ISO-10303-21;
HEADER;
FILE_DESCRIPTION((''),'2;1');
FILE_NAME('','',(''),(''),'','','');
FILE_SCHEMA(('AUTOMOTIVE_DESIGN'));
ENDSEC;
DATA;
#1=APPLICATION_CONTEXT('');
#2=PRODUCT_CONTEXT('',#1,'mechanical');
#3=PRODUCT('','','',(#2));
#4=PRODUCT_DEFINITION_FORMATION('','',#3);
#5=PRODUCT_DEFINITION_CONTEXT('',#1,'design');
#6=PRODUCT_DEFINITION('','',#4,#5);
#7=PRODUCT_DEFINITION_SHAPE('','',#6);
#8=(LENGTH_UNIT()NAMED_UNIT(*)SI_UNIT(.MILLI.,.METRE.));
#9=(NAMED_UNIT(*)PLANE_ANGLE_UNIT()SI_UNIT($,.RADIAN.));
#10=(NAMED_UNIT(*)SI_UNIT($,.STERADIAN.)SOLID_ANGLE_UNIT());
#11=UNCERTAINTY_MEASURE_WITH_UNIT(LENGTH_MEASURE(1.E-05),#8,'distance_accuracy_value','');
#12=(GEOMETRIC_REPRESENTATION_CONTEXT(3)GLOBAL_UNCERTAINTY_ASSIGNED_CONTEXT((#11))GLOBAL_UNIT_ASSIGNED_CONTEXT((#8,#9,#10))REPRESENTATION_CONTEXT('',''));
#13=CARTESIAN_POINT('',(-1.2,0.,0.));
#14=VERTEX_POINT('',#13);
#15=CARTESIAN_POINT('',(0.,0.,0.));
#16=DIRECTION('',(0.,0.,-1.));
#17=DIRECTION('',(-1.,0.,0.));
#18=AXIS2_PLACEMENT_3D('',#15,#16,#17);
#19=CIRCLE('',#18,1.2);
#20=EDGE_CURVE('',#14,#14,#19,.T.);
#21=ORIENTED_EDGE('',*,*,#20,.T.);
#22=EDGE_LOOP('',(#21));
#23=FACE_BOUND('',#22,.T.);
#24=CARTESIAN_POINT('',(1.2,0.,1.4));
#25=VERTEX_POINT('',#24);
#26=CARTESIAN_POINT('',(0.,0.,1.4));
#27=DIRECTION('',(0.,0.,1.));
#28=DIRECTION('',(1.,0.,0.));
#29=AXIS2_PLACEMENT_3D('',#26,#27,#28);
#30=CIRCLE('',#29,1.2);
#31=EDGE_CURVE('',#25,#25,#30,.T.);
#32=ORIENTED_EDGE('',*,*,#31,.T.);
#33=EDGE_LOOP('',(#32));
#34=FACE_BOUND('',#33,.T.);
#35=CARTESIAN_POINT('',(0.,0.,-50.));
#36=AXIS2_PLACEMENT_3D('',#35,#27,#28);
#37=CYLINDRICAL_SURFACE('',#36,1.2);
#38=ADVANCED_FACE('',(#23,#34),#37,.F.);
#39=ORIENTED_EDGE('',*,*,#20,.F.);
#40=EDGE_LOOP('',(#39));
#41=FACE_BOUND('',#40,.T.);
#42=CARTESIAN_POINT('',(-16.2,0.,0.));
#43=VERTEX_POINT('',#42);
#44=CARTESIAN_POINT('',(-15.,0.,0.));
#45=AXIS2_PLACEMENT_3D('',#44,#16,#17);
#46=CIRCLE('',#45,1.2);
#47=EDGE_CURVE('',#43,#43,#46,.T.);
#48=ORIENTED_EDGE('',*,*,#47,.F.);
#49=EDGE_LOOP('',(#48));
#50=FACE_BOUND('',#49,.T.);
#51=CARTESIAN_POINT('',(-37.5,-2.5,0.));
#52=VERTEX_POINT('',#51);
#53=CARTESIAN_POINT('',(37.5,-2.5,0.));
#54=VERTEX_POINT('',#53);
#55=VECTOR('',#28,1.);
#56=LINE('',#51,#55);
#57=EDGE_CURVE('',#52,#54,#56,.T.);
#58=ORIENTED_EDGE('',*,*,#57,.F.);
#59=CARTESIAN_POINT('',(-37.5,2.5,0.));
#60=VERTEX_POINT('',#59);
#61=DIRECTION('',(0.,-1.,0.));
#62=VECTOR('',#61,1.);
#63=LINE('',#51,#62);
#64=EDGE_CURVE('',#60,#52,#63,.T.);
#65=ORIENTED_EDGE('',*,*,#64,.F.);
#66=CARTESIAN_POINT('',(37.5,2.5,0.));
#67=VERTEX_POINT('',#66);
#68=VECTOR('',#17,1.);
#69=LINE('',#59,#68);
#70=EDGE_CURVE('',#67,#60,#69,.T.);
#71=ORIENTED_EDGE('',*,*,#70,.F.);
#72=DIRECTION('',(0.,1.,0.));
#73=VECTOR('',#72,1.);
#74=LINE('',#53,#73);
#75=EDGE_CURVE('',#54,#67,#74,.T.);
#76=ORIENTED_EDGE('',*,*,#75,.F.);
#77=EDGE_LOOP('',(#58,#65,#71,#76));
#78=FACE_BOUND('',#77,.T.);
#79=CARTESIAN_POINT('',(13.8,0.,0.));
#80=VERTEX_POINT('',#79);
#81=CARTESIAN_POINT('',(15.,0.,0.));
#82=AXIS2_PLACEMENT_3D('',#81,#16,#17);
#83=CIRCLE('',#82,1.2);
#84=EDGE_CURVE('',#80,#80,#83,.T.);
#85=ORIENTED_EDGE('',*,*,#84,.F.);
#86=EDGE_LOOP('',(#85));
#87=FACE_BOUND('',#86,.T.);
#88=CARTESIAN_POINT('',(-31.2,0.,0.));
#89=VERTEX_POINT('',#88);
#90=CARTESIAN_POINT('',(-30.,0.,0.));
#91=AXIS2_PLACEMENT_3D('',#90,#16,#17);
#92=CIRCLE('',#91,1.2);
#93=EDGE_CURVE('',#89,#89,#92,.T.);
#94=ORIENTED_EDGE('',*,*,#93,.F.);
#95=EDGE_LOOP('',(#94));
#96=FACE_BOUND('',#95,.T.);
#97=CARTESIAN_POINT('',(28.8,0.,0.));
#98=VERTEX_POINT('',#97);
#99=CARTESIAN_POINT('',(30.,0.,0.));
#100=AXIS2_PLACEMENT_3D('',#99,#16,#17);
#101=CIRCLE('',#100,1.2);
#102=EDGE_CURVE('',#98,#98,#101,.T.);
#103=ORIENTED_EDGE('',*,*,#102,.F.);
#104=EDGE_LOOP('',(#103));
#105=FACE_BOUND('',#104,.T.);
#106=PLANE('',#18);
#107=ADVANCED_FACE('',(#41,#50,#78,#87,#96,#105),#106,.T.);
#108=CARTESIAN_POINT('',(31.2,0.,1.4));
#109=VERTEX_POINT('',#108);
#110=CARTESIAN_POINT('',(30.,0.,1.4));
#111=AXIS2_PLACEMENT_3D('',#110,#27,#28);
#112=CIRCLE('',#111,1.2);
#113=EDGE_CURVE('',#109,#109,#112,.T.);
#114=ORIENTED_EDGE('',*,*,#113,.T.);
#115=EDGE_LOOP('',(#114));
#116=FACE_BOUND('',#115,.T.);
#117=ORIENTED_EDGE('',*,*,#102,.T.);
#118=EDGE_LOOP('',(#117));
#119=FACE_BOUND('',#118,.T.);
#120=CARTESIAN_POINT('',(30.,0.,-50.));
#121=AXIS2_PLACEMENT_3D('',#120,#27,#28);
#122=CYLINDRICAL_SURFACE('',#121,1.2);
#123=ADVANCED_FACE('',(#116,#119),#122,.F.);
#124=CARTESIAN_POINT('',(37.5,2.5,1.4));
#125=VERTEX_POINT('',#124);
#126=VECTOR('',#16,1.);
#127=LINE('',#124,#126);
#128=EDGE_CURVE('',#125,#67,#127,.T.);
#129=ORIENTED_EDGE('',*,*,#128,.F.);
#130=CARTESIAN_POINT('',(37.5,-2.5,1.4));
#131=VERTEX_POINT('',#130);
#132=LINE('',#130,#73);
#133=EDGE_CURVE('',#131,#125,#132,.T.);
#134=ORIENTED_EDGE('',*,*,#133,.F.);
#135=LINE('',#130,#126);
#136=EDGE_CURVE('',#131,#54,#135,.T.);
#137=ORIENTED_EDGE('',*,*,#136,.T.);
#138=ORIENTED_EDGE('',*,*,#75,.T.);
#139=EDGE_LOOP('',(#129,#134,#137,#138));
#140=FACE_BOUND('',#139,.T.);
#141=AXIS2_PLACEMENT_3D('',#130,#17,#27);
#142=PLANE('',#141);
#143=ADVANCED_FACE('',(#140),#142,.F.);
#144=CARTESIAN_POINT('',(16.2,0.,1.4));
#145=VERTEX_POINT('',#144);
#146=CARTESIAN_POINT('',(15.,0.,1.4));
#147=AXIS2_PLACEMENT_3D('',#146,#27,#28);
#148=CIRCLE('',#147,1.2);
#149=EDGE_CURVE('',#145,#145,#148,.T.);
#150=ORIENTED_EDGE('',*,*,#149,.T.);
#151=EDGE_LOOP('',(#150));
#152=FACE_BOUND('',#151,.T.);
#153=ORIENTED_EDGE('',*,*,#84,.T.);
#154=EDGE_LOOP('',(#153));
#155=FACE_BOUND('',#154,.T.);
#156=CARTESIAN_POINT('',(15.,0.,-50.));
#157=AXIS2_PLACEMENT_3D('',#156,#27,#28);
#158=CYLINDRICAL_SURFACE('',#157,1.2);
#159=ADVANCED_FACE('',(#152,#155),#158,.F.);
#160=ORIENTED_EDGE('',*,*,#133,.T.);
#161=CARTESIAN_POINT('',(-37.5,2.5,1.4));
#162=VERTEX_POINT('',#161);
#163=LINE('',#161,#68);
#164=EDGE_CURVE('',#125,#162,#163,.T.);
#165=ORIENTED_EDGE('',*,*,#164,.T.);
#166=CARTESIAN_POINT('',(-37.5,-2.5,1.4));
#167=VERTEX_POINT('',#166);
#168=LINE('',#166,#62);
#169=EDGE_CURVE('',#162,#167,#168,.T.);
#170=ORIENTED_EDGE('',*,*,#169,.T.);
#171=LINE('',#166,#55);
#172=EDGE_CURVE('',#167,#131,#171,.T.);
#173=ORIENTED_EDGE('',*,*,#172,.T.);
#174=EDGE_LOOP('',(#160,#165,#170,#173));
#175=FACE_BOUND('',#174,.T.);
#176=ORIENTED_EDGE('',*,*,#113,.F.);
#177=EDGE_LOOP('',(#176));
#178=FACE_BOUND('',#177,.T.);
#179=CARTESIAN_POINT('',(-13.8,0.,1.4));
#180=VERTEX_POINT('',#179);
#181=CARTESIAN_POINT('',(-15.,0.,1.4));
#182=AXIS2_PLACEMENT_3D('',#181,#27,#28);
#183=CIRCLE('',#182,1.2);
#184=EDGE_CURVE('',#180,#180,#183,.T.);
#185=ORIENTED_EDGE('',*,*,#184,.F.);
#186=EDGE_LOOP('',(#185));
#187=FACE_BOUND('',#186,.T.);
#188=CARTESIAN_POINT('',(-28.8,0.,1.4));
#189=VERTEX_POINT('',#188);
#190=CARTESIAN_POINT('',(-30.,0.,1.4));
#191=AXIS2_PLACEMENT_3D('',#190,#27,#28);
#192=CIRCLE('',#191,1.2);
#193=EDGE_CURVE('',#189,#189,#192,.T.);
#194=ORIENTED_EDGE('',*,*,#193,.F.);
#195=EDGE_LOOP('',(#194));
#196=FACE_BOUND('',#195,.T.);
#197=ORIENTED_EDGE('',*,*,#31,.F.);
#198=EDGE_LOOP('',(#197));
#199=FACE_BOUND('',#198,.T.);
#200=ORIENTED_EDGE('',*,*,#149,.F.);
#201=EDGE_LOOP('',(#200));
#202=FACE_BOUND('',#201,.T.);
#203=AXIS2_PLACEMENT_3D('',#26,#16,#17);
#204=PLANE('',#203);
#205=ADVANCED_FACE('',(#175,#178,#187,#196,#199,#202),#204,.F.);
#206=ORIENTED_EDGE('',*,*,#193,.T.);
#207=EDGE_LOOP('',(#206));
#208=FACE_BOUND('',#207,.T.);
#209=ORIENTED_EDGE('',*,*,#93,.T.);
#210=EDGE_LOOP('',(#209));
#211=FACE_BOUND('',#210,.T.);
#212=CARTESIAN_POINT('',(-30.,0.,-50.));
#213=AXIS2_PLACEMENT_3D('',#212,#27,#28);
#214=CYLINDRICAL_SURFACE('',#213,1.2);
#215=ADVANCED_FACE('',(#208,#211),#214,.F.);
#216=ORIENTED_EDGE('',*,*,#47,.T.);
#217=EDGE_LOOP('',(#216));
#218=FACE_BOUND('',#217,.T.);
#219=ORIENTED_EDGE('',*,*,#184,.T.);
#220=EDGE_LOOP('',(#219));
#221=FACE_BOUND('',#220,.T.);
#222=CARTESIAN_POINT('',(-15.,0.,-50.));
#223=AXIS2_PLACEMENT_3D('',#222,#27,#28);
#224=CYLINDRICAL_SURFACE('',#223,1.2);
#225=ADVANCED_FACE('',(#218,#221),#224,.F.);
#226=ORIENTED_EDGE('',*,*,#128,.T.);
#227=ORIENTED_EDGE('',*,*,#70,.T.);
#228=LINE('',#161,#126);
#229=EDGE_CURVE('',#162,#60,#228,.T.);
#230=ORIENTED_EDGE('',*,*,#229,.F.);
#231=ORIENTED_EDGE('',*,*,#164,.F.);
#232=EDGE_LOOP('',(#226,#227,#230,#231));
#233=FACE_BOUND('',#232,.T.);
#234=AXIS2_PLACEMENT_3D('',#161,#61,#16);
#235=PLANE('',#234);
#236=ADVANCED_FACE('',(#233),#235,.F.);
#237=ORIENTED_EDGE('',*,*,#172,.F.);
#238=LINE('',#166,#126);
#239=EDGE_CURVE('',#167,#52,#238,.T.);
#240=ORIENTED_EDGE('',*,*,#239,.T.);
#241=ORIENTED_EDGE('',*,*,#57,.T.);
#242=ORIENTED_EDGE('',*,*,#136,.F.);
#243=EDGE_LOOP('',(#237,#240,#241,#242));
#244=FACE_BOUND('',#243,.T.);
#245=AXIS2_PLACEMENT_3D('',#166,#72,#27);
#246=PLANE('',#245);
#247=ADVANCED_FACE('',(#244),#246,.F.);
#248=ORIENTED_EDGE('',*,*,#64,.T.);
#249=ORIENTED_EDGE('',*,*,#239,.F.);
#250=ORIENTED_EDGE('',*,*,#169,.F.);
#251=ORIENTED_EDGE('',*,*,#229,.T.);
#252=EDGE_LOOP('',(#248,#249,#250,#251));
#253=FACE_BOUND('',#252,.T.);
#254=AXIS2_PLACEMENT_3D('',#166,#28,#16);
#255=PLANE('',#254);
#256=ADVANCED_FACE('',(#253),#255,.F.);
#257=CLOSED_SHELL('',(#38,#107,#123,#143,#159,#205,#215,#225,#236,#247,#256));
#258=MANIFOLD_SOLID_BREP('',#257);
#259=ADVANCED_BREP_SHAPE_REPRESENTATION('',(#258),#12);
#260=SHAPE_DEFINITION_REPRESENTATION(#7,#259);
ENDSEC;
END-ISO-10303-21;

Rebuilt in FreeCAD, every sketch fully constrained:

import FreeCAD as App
import Part
import Sketcher
Q = App.Units.Quantity


def add_polygon(sketch, points):
    """Adds a closed chain of lines whose ends are joined by coincident constraints."""
    first, n = sketch.GeometryCount, len(points)
    for a, b in zip(points, points[1:] + points[:1]):
        sketch.addGeometry(Part.LineSegment(App.Vector(*a, 0), App.Vector(*b, 0)), False)
    for i in range(n):
        sketch.addConstraint(Sketcher.Constraint("Coincident", first + i, 2, first + (i + 1) % n, 1))

doc = App.newDocument("Part")
body = doc.addObject("PartDesign::Body", "Body")

# Sketch on XY plane
sketch1 = body.newObject("Sketcher::SketchObject", "Sketch")
sketch1.AttachmentSupport = (doc.getObject("XY_Plane"), [""])
sketch1.MapMode = "FlatFace"
add_polygon(sketch1, [(-38, 2), (-38, -2), (38, -2), (38, 2)])  # lines 0-3
sketch1.addConstraint(Sketcher.Constraint("Vertical", 0))
sketch1.addConstraint(Sketcher.Constraint("Horizontal", 1))
sketch1.addConstraint(Sketcher.Constraint("Vertical", 2))
sketch1.addConstraint(Sketcher.Constraint("Horizontal", 3))
sketch1.addConstraint(Sketcher.Constraint("Symmetric", 0, 2, 2, 2, -1, 1))
sketch1.addConstraint(Sketcher.Constraint("DistanceX", 1, 1, 1, 2, Q("75 mm")))
sketch1.addConstraint(Sketcher.Constraint("DistanceY", 0, 2, 0, 1, Q("5 mm")))
pad1 = body.newObject("PartDesign::Pad", "Pad")
pad1.Profile = sketch1
pad1.Length = 1.4

# Sketch on XY plane
sketch2 = body.newObject("Sketcher::SketchObject", "Sketch001")
sketch2.AttachmentSupport = (doc.getObject("XY_Plane"), [""])
sketch2.MapMode = "FlatFace"
sketch2.AttachmentOffset = App.Placement(App.Vector(0, 0, 1.4), App.Rotation())
sketch2.addGeometry(Part.Circle(App.Vector(-30, 0, 0), App.Vector(0, 0, 1), 1.2), False)
sketch2.addGeometry(Part.Circle(App.Vector(-15, 0, 0), App.Vector(0, 0, 1), 1.2), False)
sketch2.addGeometry(Part.Circle(App.Vector(0, 0, 0), App.Vector(0, 0, 1), 1.2), False)
sketch2.addGeometry(Part.Circle(App.Vector(15, 0, 0), App.Vector(0, 0, 1), 1.2), False)
sketch2.addGeometry(Part.Circle(App.Vector(30, 0, 0), App.Vector(0, 0, 1), 1.2), False)
sketch2.addConstraint(Sketcher.Constraint("Coincident", 2, 3, -1, 1))
sketch2.addConstraint(Sketcher.Constraint("Equal", 0, 1))
sketch2.addConstraint(Sketcher.Constraint("Equal", 1, 2))
sketch2.addConstraint(Sketcher.Constraint("Equal", 2, 3))
sketch2.addConstraint(Sketcher.Constraint("Equal", 3, 4))
sketch2.addConstraint(Sketcher.Constraint("Symmetric", 1, 3, 3, 3, -1, 1))
sketch2.addConstraint(Sketcher.Constraint("Symmetric", 0, 3, 4, 3, -1, 1))
sketch2.addConstraint(Sketcher.Constraint("PointOnObject", 0, 3, -1))
sketch2.addConstraint(Sketcher.Constraint("PointOnObject", 1, 3, -1))
sketch2.addConstraint(Sketcher.Constraint("Diameter", 0, Q("2.4 mm")))
sketch2.addConstraint(Sketcher.Constraint("DistanceX", 0, 3, -1, 1, Q("30 mm")))
sketch2.addConstraint(Sketcher.Constraint("DistanceX", 1, 3, -1, 1, Q("15 mm")))
pocket1 = body.newObject("PartDesign::Pocket", "Pocket")
pocket1.Profile = sketch2
pocket1.Length = 51.4

doc.recompute()
